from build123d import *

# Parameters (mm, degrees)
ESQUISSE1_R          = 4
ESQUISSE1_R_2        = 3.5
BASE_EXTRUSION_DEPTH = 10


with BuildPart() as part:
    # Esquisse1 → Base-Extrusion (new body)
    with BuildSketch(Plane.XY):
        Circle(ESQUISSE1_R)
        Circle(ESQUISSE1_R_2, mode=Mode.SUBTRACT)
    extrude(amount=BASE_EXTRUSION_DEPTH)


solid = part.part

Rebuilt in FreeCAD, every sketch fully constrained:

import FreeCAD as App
import Part
import Sketcher

doc = App.newDocument("Part")
body = doc.addObject("PartDesign::Body", "Body")

# Sketch on XY plane
sketch1 = doc.addObject("Sketcher::SketchObject", "Sketch")
body.addObject(sketch1)
sketch1.AttachmentSupport = (doc.XY_Plane, [""])
sketch1.MapMode = "FlatFace"
sketch1.addGeometry([
    Part.Circle(App.Vector(0, 0, 0), App.Vector(0, 0, 1), 4),
    Part.Circle(App.Vector(0, 0, 0), App.Vector(0, 0, 1), 3.5),
], False)
sketch1.addConstraint([
    Sketcher.Constraint("Coincident", 0, 3, -1, 1),
    Sketcher.Constraint("Coincident", 1, 3, -1, 1),
    Sketcher.Constraint("Diameter", 0, 8.0),
    Sketcher.Constraint("Diameter", 1, 7.0),
])
pad1 = doc.addObject("PartDesign::Pad", "Pad")
body.addObject(pad1)
pad1.Profile = sketch1
pad1.Length = 10

doc.recompute()
